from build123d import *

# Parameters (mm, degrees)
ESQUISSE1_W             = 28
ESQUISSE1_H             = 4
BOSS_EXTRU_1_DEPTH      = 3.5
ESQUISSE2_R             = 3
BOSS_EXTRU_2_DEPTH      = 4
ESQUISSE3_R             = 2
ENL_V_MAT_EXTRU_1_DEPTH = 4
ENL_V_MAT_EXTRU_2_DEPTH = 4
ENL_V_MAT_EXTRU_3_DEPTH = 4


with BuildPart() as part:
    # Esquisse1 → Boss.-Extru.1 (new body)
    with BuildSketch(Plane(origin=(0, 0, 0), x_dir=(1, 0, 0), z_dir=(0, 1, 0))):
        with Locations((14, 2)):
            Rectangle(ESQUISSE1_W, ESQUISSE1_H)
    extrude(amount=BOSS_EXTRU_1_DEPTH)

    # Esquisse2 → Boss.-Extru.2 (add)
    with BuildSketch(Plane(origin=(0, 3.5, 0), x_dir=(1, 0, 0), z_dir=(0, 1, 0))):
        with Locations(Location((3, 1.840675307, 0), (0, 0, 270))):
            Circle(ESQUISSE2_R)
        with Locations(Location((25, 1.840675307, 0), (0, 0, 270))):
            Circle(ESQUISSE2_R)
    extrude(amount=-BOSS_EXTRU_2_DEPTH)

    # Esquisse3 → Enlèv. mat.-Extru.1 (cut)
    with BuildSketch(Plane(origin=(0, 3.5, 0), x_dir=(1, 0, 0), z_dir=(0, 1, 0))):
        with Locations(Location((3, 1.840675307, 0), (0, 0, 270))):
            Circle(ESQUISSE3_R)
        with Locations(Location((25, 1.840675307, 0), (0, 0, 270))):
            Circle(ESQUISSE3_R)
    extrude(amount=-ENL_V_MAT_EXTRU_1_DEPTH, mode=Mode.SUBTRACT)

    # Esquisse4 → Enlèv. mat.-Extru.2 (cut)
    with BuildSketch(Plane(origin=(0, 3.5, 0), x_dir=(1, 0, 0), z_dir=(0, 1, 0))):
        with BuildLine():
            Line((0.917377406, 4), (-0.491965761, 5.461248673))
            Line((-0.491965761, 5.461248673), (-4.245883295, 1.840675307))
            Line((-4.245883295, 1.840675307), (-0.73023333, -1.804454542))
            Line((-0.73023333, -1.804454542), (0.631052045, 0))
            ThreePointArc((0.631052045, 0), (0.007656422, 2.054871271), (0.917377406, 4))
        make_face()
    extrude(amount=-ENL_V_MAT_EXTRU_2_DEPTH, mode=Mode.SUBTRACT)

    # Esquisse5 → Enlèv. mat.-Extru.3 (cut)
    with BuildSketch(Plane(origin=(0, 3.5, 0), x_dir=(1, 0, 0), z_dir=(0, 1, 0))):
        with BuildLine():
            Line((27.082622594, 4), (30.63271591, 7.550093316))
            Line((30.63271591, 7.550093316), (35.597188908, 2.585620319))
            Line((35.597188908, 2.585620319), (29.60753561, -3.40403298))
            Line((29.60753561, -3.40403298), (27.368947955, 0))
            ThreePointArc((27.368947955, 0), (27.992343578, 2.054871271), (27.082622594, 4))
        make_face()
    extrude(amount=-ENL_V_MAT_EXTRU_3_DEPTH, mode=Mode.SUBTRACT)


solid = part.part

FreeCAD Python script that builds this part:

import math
import FreeCAD as App
import Part
import Sketcher

V = App.Vector
Q = App.Units.Quantity


def add_polygon(sketch, points):
    """Adds a closed chain of lines whose ends are joined by coincident constraints."""
    first, n = sketch.GeometryCount, len(points)
    for a, b in zip(points, points[1:] + points[:1]):
        sketch.addGeometry(Part.LineSegment(App.Vector(*a, 0), App.Vector(*b, 0)), False)
    for i in range(n):
        sketch.addConstraint(Sketcher.Constraint("Coincident", first + i, 2, first + (i + 1) % n, 1))

doc = App.newDocument("Part")
params = doc.addObject("Spreadsheet::Sheet", "Params")
for row, (alias, value) in enumerate([
    ("sketch1_width", "28 mm"),
    ("sketch1_height", "4 mm"),
    ("pad1_length", "3.5 mm"),
    ("sketch2_diameter", "6 mm"),
    ("pad2_length", "4 mm"),
    ("sketch3_diameter", "4 mm"),
    ("pocket1_length", "4 mm"),
    ("sketch4_radius", "3 mm"),
    ("pocket2_length", "4 mm"),
    ("sketch5_radius", "3 mm"),
    ("pocket3_length", "4 mm"),
], start=1):
    params.set(f"A{row}", alias)
    params.set(f"B{row}", "=" + value)
    params.setAlias(f"B{row}", alias)

body = doc.addObject("PartDesign::Body", "Body")

# Sketch on XZ plane
sketch1 = body.newObject("Sketcher::SketchObject", "Sketch")
sketch1.AttachmentSupport = (doc.getObject("XZ_Plane"), [""])
sketch1.MapMode = "FlatFace"
add_polygon(sketch1, [(0, -4), (0, 0), (28, 0), (28, -4)])  # lines 0-3
sketch1.addConstraint(Sketcher.Constraint("Vertical", 0))
sketch1.addConstraint(Sketcher.Constraint("Horizontal", 1))
sketch1.addConstraint(Sketcher.Constraint("Vertical", 2))
sketch1.addConstraint(Sketcher.Constraint("Horizontal", 3))
sketch1.addConstraint(Sketcher.Constraint("Coincident", 0, 2, -1, 1))
sketch1.addConstraint(Sketcher.Constraint("DistanceX", 1, 1, 1, 2, 28.0))
sketch1.addConstraint(Sketcher.Constraint("DistanceY", 0, 1, 0, 2, 4.0))
sketch1.setExpression("Constraints[9]", "Params.sketch1_width")
sketch1.setExpression("Constraints[10]", "Params.sketch1_height")
pad1 = body.newObject("PartDesign::Pad", "Pad")
pad1.Profile = sketch1
pad1.setExpression("Length", "Params.pad1_length")
pad1.Reversed = True

# Sketch on XZ plane
sketch2 = body.newObject("Sketcher::SketchObject", "Sketch001")
sketch2.AttachmentSupport = (doc.getObject("XZ_Plane"), [""])
sketch2.MapMode = "FlatFace"
sketch2.AttachmentOffset = App.Placement(V(0, 0, -3.5), App.Rotation())
sketch2.addGeometry(Part.Circle(V(3, -1.8, 0), V(0, 0, 1), 3), False)
sketch2.addGeometry(Part.Circle(V(25, -1.8, 0), V(0, 0, 1), 3), False)
sketch2.addConstraint(Sketcher.Constraint("Equal", 0, 1))
sketch2.addConstraint(Sketcher.Constraint("Horizontal", 0, 3, 1, 3))
sketch2.addConstraint(Sketcher.Constraint("Diameter", 0, 6.0))
sketch2.addConstraint(Sketcher.Constraint("DistanceX", -1, 1, 0, 3, 3.0))
sketch2.addConstraint(Sketcher.Constraint("DistanceX", -1, 1, 1, 3, 25.0))
sketch2.addConstraint(Sketcher.Constraint("DistanceY", 0, 3, -1, 1, 1.840675))
sketch2.setExpression("Constraints[2]", "Params.sketch2_diameter")
pad2 = body.newObject("PartDesign::Pad", "Pad001")
pad2.Profile = sketch2
pad2.setExpression("Length", "Params.pad2_length")

# Sketch on XZ plane
sketch3 = body.newObject("Sketcher::SketchObject", "Sketch002")
sketch3.AttachmentSupport = (doc.getObject("XZ_Plane"), [""])
sketch3.MapMode = "FlatFace"
sketch3.AttachmentOffset = App.Placement(V(0, 0, -3.5), App.Rotation())
sketch3.addGeometry(Part.Circle(V(3, -1.8, 0), V(0, 0, 1), 2), False)
sketch3.addGeometry(Part.Circle(V(25, -1.8, 0), V(0, 0, 1), 2), False)
sketch3.addConstraint(Sketcher.Constraint("Equal", 0, 1))
sketch3.addConstraint(Sketcher.Constraint("Horizontal", 0, 3, 1, 3))
sketch3.addConstraint(Sketcher.Constraint("Diameter", 0, 4.0))
sketch3.addConstraint(Sketcher.Constraint("DistanceX", -1, 1, 0, 3, 3.0))
sketch3.addConstraint(Sketcher.Constraint("DistanceX", -1, 1, 1, 3, 25.0))
sketch3.addConstraint(Sketcher.Constraint("DistanceY", 0, 3, -1, 1, 1.840675))
sketch3.setExpression("Constraints[2]", "Params.sketch3_diameter")
pocket1 = body.newObject("PartDesign::Pocket", "Pocket")
pocket1.Profile = sketch3
pocket1.setExpression("Length", "Params.pocket1_length")
pocket1.Reversed = True

# Sketch on XZ plane
sketch4 = body.newObject("Sketcher::SketchObject", "Sketch003")
sketch4.AttachmentSupport = (doc.getObject("XZ_Plane"), [""])
sketch4.MapMode = "FlatFace"
sketch4.AttachmentOffset = App.Placement(V(0, 0, -3.5), App.Rotation())
sketch4.addGeometry(Part.LineSegment(V(0.9, -4, 0), V(-0.5, -5.5, 0)), False)
sketch4.addGeometry(Part.LineSegment(V(-0.5, -5.5, 0), V(-4.2, -1.8, 0)), False)
sketch4.addGeometry(Part.LineSegment(V(-4.2, -1.8, 0), V(-0.7, 1.8, 0)), False)
sketch4.addGeometry(Part.LineSegment(V(-0.7, 1.8, 0), V(0.6, 0, 0)), False)
sketch4.addGeometry(Part.ArcOfCircle(Part.Circle(V(3, -1.8, 0), V(0, 0, 1), 3), math.radians(142), math.radians(226)), False)
sketch4.addConstraint(Sketcher.Constraint("Coincident", 0, 2, 1, 1))
sketch4.addConstraint(Sketcher.Constraint("Coincident", 1, 2, 2, 1))
sketch4.addConstraint(Sketcher.Constraint("Coincident", 2, 2, 3, 1))
sketch4.addConstraint(Sketcher.Constraint("Coincident", 3, 2, 4, 1))
sketch4.addConstraint(Sketcher.Constraint("Coincident", 4, 2, 0, 1))
sketch4.addConstraint(Sketcher.Constraint("PointOnObject", 3, 2, -1))
sketch4.addConstraint(Sketcher.Constraint("Perpendicular", 0, 1))
sketch4.addConstraint(Sketcher.Constraint("Perpendicular", 1, 2))
sketch4.addConstraint(Sketcher.Constraint("Horizontal", 4, 3, 1, 2))
sketch4.addConstraint(Sketcher.Constraint("Radius", 4, 3.0))
sketch4.addConstraint(Sketcher.Constraint("DistanceX", -1, 1, 4, 3, 3.0))
sketch4.addConstraint(Sketcher.Constraint("DistanceY", 4, 2, -1, 1, 4.0))
sketch4.addConstraint(Sketcher.Constraint("DistanceY", 0, 2, -1, 1, 5.461249))
sketch4.addConstraint(Sketcher.Constraint("DistanceX", 1, 2, 2, 2, 3.51565))
sketch4.addConstraint(Sketcher.Constraint("DistanceY", 1, 2, 2, 2, 3.64513))
sketch4.addConstraint(Sketcher.Constraint("DistanceX", 1, 2, 4, 2, 5.163261))
sketch4.setExpression("Constraints[9]", "Params.sketch4_radius")
pocket2 = body.newObject("PartDesign::Pocket", "Pocket001")
pocket2.Profile = sketch4
pocket2.setExpression("Length", "Params.pocket2_length")
pocket2.Reversed = True

# Sketch on XZ plane
sketch5 = body.newObject("Sketcher::SketchObject", "Sketch004")
sketch5.AttachmentSupport = (doc.getObject("XZ_Plane"), [""])
sketch5.MapMode = "FlatFace"
sketch5.AttachmentOffset = App.Placement(V(0, 0, -3.5), App.Rotation())
sketch5.addGeometry(Part.LineSegment(V(30.6, -7.6, 0), V(27.1, -4, 0)), False)
sketch5.addGeometry(Part.ArcOfCircle(Part.Circle(V(25, -1.8, 0), V(0, 0, 1), 3), math.radians(-46), math.radians(38)), False)
sketch5.addGeometry(Part.LineSegment(V(27.4, 0, 0), V(29.6, 3.4, 0)), False)
sketch5.addGeometry(Part.LineSegment(V(29.6, 3.4, 0), V(35.6, -2.6, 0)), False)
sketch5.addGeometry(Part.LineSegment(V(35.6, -2.6, 0), V(30.6, -7.6, 0)), False)
sketch5.addConstraint(Sketcher.Constraint("Coincident", 0, 2, 1, 1))
sketch5.addConstraint(Sketcher.Constraint("Coincident", 1, 2, 2, 1))
sketch5.addConstraint(Sketcher.Constraint("Coincident", 2, 2, 3, 1))
sketch5.addConstraint(Sketcher.Constraint("Coincident", 3, 2, 4, 1))
sketch5.addConstraint(Sketcher.Constraint("Coincident", 4, 2, 0, 1))
sketch5.addConstraint(Sketcher.Constraint("PointOnObject", 1, 2, -1))
sketch5.addConstraint(Sketcher.Constraint("Parallel", 0, 3))
sketch5.addConstraint(Sketcher.Constraint("Perpendicular", 3, 4))
sketch5.addConstraint(Sketcher.Constraint("Radius", 1, 3.0))
sketch5.addConstraint(Sketcher.Constraint("Angle", 0, Q("135 deg")))
sketch5.addConstraint(Sketcher.Constraint("DistanceX", -1, 1, 1, 3, 25.0))
sketch5.addConstraint(Sketcher.Constraint("DistanceY", 0, 2, -1, 1, 4.0))
sketch5.addConstraint(Sketcher.Constraint("Distance", 0, 5.02059))
sketch5.addConstraint(Sketcher.Constraint("Distance", 3, 8.470649))
sketch5.addConstraint(Sketcher.Constraint("DistanceX", -1, 1, 3, 2, 35.597189))
sketch5.addConstraint(Sketcher.Constraint("DistanceY", 3, 2, -1, 1, 2.58562))
sketch5.setExpression("Constraints[8]", "Params.sketch5_radius")
pocket3 = body.newObject("PartDesign::Pocket", "Pocket002")
pocket3.Profile = sketch5
pocket3.setExpression("Length", "Params.pocket3_length")
pocket3.Reversed = True

doc.recompute()
